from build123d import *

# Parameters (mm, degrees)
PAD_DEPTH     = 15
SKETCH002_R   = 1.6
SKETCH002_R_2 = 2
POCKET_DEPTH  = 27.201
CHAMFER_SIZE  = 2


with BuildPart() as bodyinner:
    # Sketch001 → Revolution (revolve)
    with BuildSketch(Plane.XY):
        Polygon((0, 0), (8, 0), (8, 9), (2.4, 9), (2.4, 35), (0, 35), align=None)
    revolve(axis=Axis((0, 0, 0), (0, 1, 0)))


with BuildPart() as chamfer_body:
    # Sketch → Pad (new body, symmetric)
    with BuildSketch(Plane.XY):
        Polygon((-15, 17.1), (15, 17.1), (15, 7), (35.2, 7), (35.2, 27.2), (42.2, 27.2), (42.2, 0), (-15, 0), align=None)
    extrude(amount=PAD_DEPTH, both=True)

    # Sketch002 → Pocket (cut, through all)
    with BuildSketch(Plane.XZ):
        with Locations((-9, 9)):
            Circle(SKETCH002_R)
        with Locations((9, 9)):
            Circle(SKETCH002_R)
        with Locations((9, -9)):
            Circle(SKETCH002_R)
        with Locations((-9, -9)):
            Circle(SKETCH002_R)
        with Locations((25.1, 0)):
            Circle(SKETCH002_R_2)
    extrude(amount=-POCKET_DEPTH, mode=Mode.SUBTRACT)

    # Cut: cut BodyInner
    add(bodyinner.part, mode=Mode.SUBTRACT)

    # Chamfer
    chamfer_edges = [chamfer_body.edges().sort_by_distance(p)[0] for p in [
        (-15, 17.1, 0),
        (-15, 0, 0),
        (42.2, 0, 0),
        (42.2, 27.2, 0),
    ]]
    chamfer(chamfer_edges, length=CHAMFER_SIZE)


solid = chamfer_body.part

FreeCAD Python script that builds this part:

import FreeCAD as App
import Part
import Sketcher


def edges_at(feature, points):
    """Names of the edges that pass closest to the given points."""
    edges = feature.Shape.Edges
    near = lambda p: min(range(len(edges)), key=lambda i: edges[i].distToShape(Part.Vertex(*p))[0])
    return sorted({f"Edge{near(p) + 1}" for p in points})


def add_polygon(sketch, points):
    """Adds a closed chain of lines whose ends are joined by coincident constraints."""
    first, n = sketch.GeometryCount, len(points)
    for a, b in zip(points, points[1:] + points[:1]):
        sketch.addGeometry(Part.LineSegment(App.Vector(*a, 0), App.Vector(*b, 0)), False)
    for i in range(n):
        sketch.addConstraint(Sketcher.Constraint("Coincident", first + i, 2, first + (i + 1) % n, 1))

doc = App.newDocument("Part")
params = doc.addObject("Spreadsheet::Sheet", "Params")
for row, (alias, value) in enumerate([
    ("sketch1_width", "8 mm"),
    ("sketch1_height", "9 mm"),
    ("sketch1_height2", "26 mm"),
    ("sketch1_width2", "5.6 mm"),
    ("revolution_angle", "360 deg"),
    ("sketch2_width", "30 mm"),
    ("sketch2_width2", "7 mm"),
    ("sketch2_width3", "57.2 mm"),
    ("sketch2_height", "17.1 mm"),
    ("sketch2_height2", "27.2 mm"),
    ("pad1_length", "30 mm"),
    ("sketch3_diameter", "4 mm"),
    ("sketch3_diameter2", "3.2 mm"),
    ("chamfer_size", "2 mm"),
], start=1):
    params.set(f"A{row}", alias)
    params.set(f"B{row}", "=" + value)
    params.setAlias(f"B{row}", alias)

body = doc.addObject("PartDesign::Body", "Body")

sketch1 = body.newObject("Sketcher::SketchObject", "Sketch")
sketch1.AttachmentSupport = (doc.getObject("XY_Plane"), [""])
sketch1.MapMode = "FlatFace"
add_polygon(sketch1, [(0, 0), (8, 0), (8, 9), (2.4, 9), (2.4, 35), (0, 35)])
sketch1.addConstraint(Sketcher.Constraint("Horizontal", 0))
sketch1.addConstraint(Sketcher.Constraint("Vertical", 1))
sketch1.addConstraint(Sketcher.Constraint("Horizontal", 2))
sketch1.addConstraint(Sketcher.Constraint("Vertical", 3))
sketch1.addConstraint(Sketcher.Constraint("Horizontal", 4))
sketch1.addConstraint(Sketcher.Constraint("Vertical", 5))
sketch1.addConstraint(Sketcher.Constraint("Coincident", 5, 2, -1, 1))
sketch1.addConstraint(Sketcher.Constraint("DistanceX", 0, 1, 0, 2, 8.0))
sketch1.addConstraint(Sketcher.Constraint("DistanceY", 1, 1, 1, 2, 9.0))
sketch1.addConstraint(Sketcher.Constraint("DistanceY", 3, 1, 3, 2, 26.0))
sketch1.addConstraint(Sketcher.Constraint("DistanceX", 2, 2, 2, 1, 5.6))
sketch1.setExpression("Constraints[13]", "Params.sketch1_width")
sketch1.setExpression("Constraints[14]", "Params.sketch1_height")
sketch1.setExpression("Constraints[15]", "Params.sketch1_height2")
sketch1.setExpression("Constraints[16]", "Params.sketch1_width2")
revolution = body.newObject("PartDesign::Revolution", "Revolution")
revolution.Profile = sketch1
revolution.ReferenceAxis = (sketch1, ["V_Axis"])
revolution.setExpression("Angle", "Params.revolution_angle")
body2 = doc.addObject("PartDesign::Body", "Body001")

sketch2 = body2.newObject("Sketcher::SketchObject", "Sketch001")
sketch2.AttachmentSupport = (doc.getObject("XY_Plane001"), [""])
sketch2.MapMode = "FlatFace"
add_polygon(sketch2, [(15, 17), (-15, 17), (-15, 0), (42, 0), (42, 27), (35, 27), (35, 7), (15, 7)])
sketch2.addConstraint(Sketcher.Constraint("Horizontal", 0))
sketch2.addConstraint(Sketcher.Constraint("Vertical", 1))
sketch2.addConstraint(Sketcher.Constraint("Horizontal", 2))
sketch2.addConstraint(Sketcher.Constraint("Vertical", 3))
sketch2.addConstraint(Sketcher.Constraint("Horizontal", 4))
sketch2.addConstraint(Sketcher.Constraint("Vertical", 5))
sketch2.addConstraint(Sketcher.Constraint("Horizontal", 6))
sketch2.addConstraint(Sketcher.Constraint("Vertical", 7))
sketch2.addConstraint(Sketcher.Constraint("PointOnObject", 1, 2, -1))
sketch2.addConstraint(Sketcher.Constraint("Equal", 6, 5))
sketch2.addConstraint(Sketcher.Constraint("DistanceX", 0, 2, 0, 1, 30.0))
sketch2.addConstraint(Sketcher.Constraint("DistanceX", 4, 2, 4, 1, 7.0))
sketch2.addConstraint(Sketcher.Constraint("DistanceX", 2, 1, 2, 2, 57.2))
sketch2.addConstraint(Sketcher.Constraint("DistanceY", 1, 2, 1, 1, 17.1))
sketch2.addConstraint(Sketcher.Constraint("DistanceY", 3, 1, 3, 2, 27.2))
sketch2.addConstraint(Sketcher.Constraint("DistanceX", 0, 2, -1, 1, 15.0))
sketch2.setExpression("Constraints[18]", "Params.sketch2_width")
sketch2.setExpression("Constraints[19]", "Params.sketch2_width2")
sketch2.setExpression("Constraints[20]", "Params.sketch2_width3")
sketch2.setExpression("Constraints[21]", "Params.sketch2_height")
sketch2.setExpression("Constraints[22]", "Params.sketch2_height2")
pad1 = body2.newObject("PartDesign::Pad", "Pad")
pad1.Profile = sketch2
pad1.setExpression("Length", "Params.pad1_length")
pad1.Midplane = True

sketch3 = body2.newObject("Sketcher::SketchObject", "Sketch002")
sketch3.AttachmentSupport = (doc.getObject("XZ_Plane001"), [""])
sketch3.MapMode = "FlatFace"
sketch3.addGeometry(Part.Circle(App.Vector(-9, 9, 0), App.Vector(0, 0, 1), 1.6), False)
sketch3.addGeometry(Part.Circle(App.Vector(9, 9, 0), App.Vector(0, 0, 1), 1.6), False)
sketch3.addGeometry(Part.Circle(App.Vector(9, -9, 0), App.Vector(0, 0, 1), 1.6), False)
sketch3.addGeometry(Part.Circle(App.Vector(-9, -9, 0), App.Vector(0, 0, 1), 1.6), False)
sketch3.addGeometry(Part.Circle(App.Vector(25.1, 0, 0), App.Vector(0, 0, 1), 2), False)
sketch3.addConstraint(Sketcher.Constraint("Equal", 0, 1))
sketch3.addConstraint(Sketcher.Constraint("Equal", 1, 2))
sketch3.addConstraint(Sketcher.Constraint("Equal", 2, 3))
sketch3.addConstraint(Sketcher.Constraint("Symmetric", 0, 3, 2, 3, -1, 1))
sketch3.addConstraint(Sketcher.Constraint("Symmetric", 1, 3, 3, 3, -1, 1))
sketch3.addConstraint(Sketcher.Constraint("Symmetric", 0, 3, 1, 3, -2))
sketch3.addConstraint(Sketcher.Constraint("PointOnObject", 4, 3, -1))
sketch3.addConstraint(Sketcher.Constraint("Diameter", 4, 4.0))
sketch3.addConstraint(Sketcher.Constraint("Diameter", 0, 3.2))
sketch3.addConstraint(Sketcher.Constraint("DistanceX", 0, 3, -1, 1, 9.0))
sketch3.addConstraint(Sketcher.Constraint("DistanceY", -1, 1, 0, 3, 9.0))
sketch3.addConstraint(Sketcher.Constraint("DistanceX", -1, 1, 4, 3, 25.1))
sketch3.setExpression("Constraints[7]", "Params.sketch3_diameter")
sketch3.setExpression("Constraints[8]", "Params.sketch3_diameter2")
pocket1 = body2.newObject("PartDesign::Pocket", "Pocket")
pocket1.Profile = sketch3
pocket1.Type = "ThroughAll"
doc.recompute()

boolean = body2.newObject("PartDesign::Boolean", "Boolean")
boolean.Type = "Cut"
boolean.addObjects([body])
doc.recompute()

chamfer = body2.newObject("PartDesign::Chamfer", "Chamfer")
chamfer.Base = (boolean, edges_at(boolean, [
    (-15, 17.1, 0),
    (-15, 0, 0),
    (42.2, 0, 0),
    (42.2, 27.2, 0),
]))
chamfer.setExpression("Size", "Params.chamfer_size")

doc.recompute()
